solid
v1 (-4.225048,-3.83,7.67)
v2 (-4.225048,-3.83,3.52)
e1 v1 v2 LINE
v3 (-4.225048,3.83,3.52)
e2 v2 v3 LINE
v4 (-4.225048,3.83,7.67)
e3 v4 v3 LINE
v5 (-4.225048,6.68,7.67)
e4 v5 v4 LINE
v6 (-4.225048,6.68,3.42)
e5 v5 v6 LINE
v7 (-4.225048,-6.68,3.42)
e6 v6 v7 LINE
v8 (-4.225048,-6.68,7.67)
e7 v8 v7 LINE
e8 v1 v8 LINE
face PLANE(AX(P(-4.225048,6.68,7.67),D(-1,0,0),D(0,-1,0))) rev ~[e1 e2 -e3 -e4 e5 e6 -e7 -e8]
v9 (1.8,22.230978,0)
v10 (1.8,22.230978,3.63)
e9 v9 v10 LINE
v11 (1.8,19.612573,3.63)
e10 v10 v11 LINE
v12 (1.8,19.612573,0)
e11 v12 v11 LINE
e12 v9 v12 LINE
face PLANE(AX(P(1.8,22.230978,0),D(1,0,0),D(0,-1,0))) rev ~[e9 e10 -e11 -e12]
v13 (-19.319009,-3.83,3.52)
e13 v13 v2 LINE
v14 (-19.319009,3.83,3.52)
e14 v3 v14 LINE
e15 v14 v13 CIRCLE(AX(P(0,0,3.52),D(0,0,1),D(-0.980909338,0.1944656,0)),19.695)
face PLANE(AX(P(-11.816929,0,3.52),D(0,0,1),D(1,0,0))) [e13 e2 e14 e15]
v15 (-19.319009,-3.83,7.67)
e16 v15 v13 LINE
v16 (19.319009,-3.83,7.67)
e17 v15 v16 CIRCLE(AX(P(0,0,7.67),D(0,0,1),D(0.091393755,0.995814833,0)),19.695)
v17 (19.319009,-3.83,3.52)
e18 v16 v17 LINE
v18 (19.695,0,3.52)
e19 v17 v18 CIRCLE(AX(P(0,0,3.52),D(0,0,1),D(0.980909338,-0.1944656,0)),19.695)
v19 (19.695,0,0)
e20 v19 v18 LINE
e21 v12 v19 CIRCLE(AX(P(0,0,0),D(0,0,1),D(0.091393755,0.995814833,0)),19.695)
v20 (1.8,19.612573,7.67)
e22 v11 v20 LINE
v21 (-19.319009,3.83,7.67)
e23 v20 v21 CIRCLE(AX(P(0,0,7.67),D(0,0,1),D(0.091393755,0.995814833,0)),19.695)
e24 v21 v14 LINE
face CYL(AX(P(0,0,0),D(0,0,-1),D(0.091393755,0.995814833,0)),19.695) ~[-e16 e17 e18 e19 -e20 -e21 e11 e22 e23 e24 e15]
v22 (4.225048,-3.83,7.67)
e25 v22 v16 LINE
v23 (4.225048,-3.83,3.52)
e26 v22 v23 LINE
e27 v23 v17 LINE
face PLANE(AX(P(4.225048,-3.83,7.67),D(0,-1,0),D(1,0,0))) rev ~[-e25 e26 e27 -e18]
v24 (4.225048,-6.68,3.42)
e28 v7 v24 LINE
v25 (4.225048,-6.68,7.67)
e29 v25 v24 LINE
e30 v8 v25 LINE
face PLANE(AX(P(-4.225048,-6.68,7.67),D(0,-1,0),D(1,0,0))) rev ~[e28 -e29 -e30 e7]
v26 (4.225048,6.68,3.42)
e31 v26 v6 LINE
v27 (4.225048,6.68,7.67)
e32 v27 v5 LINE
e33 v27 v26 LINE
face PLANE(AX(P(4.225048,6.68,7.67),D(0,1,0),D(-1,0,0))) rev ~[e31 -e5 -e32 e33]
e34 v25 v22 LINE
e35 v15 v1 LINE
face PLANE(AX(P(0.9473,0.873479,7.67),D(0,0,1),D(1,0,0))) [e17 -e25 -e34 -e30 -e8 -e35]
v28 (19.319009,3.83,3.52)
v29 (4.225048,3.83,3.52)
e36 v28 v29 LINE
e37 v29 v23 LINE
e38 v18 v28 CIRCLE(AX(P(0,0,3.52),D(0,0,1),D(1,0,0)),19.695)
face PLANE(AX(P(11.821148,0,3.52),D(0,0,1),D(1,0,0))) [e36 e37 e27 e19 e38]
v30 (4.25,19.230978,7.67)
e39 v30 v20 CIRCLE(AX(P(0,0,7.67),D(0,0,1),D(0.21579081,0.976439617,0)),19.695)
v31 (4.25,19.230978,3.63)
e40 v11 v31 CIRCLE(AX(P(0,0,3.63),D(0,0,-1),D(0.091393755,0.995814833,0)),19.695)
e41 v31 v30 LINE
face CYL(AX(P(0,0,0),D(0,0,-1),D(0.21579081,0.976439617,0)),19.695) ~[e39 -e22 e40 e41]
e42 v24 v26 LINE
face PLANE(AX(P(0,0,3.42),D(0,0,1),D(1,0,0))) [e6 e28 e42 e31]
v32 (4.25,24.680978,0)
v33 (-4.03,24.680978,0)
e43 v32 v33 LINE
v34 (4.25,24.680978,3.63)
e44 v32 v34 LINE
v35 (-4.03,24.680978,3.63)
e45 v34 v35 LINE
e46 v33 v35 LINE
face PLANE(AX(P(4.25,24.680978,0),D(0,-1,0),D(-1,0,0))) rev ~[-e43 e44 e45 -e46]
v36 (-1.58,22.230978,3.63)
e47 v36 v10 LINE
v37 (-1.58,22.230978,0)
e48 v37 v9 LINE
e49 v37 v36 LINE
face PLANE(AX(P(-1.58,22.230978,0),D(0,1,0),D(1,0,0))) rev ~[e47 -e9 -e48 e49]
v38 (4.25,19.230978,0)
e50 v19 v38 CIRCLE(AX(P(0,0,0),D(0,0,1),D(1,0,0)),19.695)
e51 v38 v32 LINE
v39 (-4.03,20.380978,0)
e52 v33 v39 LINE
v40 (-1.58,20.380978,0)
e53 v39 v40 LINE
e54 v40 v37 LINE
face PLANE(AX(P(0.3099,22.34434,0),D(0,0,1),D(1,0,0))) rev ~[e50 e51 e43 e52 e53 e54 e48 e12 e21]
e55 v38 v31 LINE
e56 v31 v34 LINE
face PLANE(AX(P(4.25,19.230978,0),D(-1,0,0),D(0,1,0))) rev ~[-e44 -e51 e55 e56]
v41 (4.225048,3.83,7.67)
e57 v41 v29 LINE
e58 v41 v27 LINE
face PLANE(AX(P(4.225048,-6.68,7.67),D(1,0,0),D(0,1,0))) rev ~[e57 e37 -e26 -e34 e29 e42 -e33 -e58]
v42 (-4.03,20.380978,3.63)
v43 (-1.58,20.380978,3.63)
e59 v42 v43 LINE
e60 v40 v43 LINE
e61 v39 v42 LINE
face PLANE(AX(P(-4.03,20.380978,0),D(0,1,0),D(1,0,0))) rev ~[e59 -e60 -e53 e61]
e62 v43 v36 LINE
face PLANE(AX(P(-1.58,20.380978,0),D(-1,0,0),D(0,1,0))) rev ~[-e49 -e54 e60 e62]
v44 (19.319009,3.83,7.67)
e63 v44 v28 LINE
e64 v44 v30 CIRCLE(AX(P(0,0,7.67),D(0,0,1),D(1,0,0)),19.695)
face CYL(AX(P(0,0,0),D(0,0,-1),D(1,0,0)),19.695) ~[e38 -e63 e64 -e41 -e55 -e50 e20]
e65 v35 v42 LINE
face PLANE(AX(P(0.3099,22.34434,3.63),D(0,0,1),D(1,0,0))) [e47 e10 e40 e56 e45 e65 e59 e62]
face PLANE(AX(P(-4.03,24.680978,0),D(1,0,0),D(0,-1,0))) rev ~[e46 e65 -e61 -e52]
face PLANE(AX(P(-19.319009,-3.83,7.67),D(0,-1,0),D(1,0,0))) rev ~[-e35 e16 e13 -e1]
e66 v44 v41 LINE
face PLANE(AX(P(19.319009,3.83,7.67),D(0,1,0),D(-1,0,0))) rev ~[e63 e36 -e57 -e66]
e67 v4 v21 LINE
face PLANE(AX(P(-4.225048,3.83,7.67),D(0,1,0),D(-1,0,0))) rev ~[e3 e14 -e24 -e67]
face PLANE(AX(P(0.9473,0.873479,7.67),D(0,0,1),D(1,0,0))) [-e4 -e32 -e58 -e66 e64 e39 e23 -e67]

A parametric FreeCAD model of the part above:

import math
import FreeCAD as App
import Part
import Sketcher
Q = App.Units.Quantity

doc = App.newDocument("Part")
body = doc.addObject("PartDesign::Body", "Body")

# Sketch on XY plane
sketch1 = body.newObject("Sketcher::SketchObject", "Sketch")
sketch1.AttachmentSupport = (doc.getObject("XY_Plane"), [""])
sketch1.MapMode = "FlatFace"
sketch1.addGeometry(Part.ArcOfCircle(Part.Circle(App.Vector(0, 0, 0), App.Vector(0, 0, 1), 19.7), math.radians(85), math.radians(360)), False)
sketch1.addGeometry(Part.ArcOfCircle(Part.Circle(App.Vector(0, 0, 0), App.Vector(0, 0, 1), 19.7), math.radians(0), math.radians(78)), False)
sketch1.addGeometry(Part.ArcOfCircle(Part.Circle(App.Vector(0, 0, 0), App.Vector(0, 0, 1), 19.7), math.radians(77.54), math.radians(84.76)), False)
sketch1.addConstraint(Sketcher.Constraint("Tangent", 0, 2, 1, 1))
sketch1.addConstraint(Sketcher.Constraint("Tangent", 1, 2, 2, 1))
sketch1.addConstraint(Sketcher.Constraint("Tangent", 2, 2, 0, 1))
sketch1.addConstraint(Sketcher.Constraint("Coincident", 0, 3, -1, 1))
sketch1.addConstraint(Sketcher.Constraint("PointOnObject", 0, 2, -1))
sketch1.addConstraint(Sketcher.Constraint("Radius", 0, Q("19.695 mm")))
sketch1.addConstraint(Sketcher.Constraint("DistanceX", -1, 1, 2, 2, Q("1.8 mm")))
sketch1.addConstraint(Sketcher.Constraint("DistanceX", -1, 1, 1, 2, Q("4.25 mm")))
pad1 = body.newObject("PartDesign::Pad", "Pad")
pad1.Profile = sketch1
pad1.Length = 7.67

# Sketch on XY plane
sketch2 = body.newObject("Sketcher::SketchObject", "Sketch001")
sketch2.AttachmentSupport = (doc.getObject("XY_Plane"), [""])
sketch2.MapMode = "FlatFace"
sketch2.addGeometry(Part.ArcOfCircle(Part.Circle(App.Vector(0, 0, 0), App.Vector(0, 0, 1), 19.7), math.radians(77.54), math.radians(84.76)), False)
sketch2.addGeometry(Part.LineSegment(App.Vector(4.2, 19.2, 0), App.Vector(4.2, 24.7, 0)), False)
sketch2.addGeometry(Part.LineSegment(App.Vector(4.2, 24.7, 0), App.Vector(-4, 24.7, 0)), False)
sketch2.addGeometry(Part.LineSegment(App.Vector(-4, 24.7, 0), App.Vector(-4, 20.4, 0)), False)
sketch2.addGeometry(Part.LineSegment(App.Vector(-4, 20.4, 0), App.Vector(-1.6, 20.4, 0)), False)
sketch2.addGeometry(Part.LineSegment(App.Vector(-1.6, 20.4, 0), App.Vector(-1.6, 22.2, 0)), False)
sketch2.addGeometry(Part.LineSegment(App.Vector(-1.6, 22.2, 0), App.Vector(1.8, 22.2, 0)), False)
sketch2.addGeometry(Part.LineSegment(App.Vector(1.8, 22.2, 0), App.Vector(1.8, 19.6, 0)), False)
sketch2.addConstraint(Sketcher.Constraint("Coincident", 0, 1, 1, 1))
sketch2.addConstraint(Sketcher.Constraint("Coincident", 1, 2, 2, 1))
sketch2.addConstraint(Sketcher.Constraint("Coincident", 2, 2, 3, 1))
sketch2.addConstraint(Sketcher.Constraint("Coincident", 3, 2, 4, 1))
sketch2.addConstraint(Sketcher.Constraint("Coincident", 4, 2, 5, 1))
sketch2.addConstraint(Sketcher.Constraint("Coincident", 5, 2, 6, 1))
sketch2.addConstraint(Sketcher.Constraint("Coincident", 6, 2, 7, 1))
sketch2.addConstraint(Sketcher.Constraint("Coincident", 7, 2, 0, 2))
sketch2.addConstraint(Sketcher.Constraint("Vertical", 1))
sketch2.addConstraint(Sketcher.Constraint("Horizontal", 2))
sketch2.addConstraint(Sketcher.Constraint("Vertical", 3))
sketch2.addConstraint(Sketcher.Constraint("Horizontal", 4))
sketch2.addConstraint(Sketcher.Constraint("Vertical", 5))
sketch2.addConstraint(Sketcher.Constraint("Horizontal", 6))
sketch2.addConstraint(Sketcher.Constraint("Vertical", 7))
sketch2.addConstraint(Sketcher.Constraint("Coincident", 0, 3, -1, 1))
sketch2.addConstraint(Sketcher.Constraint("DistanceY", 3, 2, 3, 1, Q("4.3 mm")))
sketch2.addConstraint(Sketcher.Constraint("Radius", 0, Q("19.695 mm")))
sketch2.addConstraint(Sketcher.Constraint("DistanceY", 0, 1, 5, 2, Q("3 mm")))
sketch2.addConstraint(Sketcher.Constraint("DistanceX", 2, 2, 2, 1, Q("8.28 mm")))
sketch2.addConstraint(Sketcher.Constraint("DistanceX", 4, 1, 4, 2, Q("2.45 mm")))
sketch2.addConstraint(Sketcher.Constraint("DistanceX", 6, 1, 6, 2, Q("3.38 mm")))
sketch2.addConstraint(Sketcher.Constraint("DistanceY", 1, 1, 1, 2, Q("5.45 mm")))
sketch2.addConstraint(Sketcher.Constraint("DistanceX", -1, 1, 6, 2, Q("1.8 mm")))
pad2 = body.newObject("PartDesign::Pad", "Pad001")
pad2.Profile = sketch2
pad2.Length = 3.63

# Sketch on XY plane
sketch3 = body.newObject("Sketcher::SketchObject", "Sketch002")
sketch3.AttachmentSupport = (doc.getObject("XY_Plane"), [""])
sketch3.MapMode = "FlatFace"
sketch3.AttachmentOffset = App.Placement(App.Vector(0, 0, 7.67), App.Rotation())
sketch3.addGeometry(Part.LineSegment(App.Vector(4, 7, 0), App.Vector(-4, 7, 0)), False)
sketch3.addGeometry(Part.LineSegment(App.Vector(-4, 7, 0), App.Vector(-4, -7, 0)), False)
sketch3.addGeometry(Part.LineSegment(App.Vector(-4, -7, 0), App.Vector(4, -7, 0)), False)
sketch3.addGeometry(Part.LineSegment(App.Vector(4, -7, 0), App.Vector(4, 7, 0)), False)
sketch3.addConstraint(Sketcher.Constraint("Coincident", 0, 2, 1, 1))
sketch3.addConstraint(Sketcher.Constraint("Coincident", 1, 2, 2, 1))
sketch3.addConstraint(Sketcher.Constraint("Coincident", 2, 2, 3, 1))
sketch3.addConstraint(Sketcher.Constraint("Coincident", 3, 2, 0, 1))
sketch3.addConstraint(Sketcher.Constraint("Horizontal", 0))
sketch3.addConstraint(Sketcher.Constraint("Vertical", 1))
sketch3.addConstraint(Sketcher.Constraint("Horizontal", 2))
sketch3.addConstraint(Sketcher.Constraint("Vertical", 3))
sketch3.addConstraint(Sketcher.Constraint("Symmetric", 0, 2, 2, 2, -1, 1))
sketch3.addConstraint(Sketcher.Constraint("DistanceY", 1, 2, 1, 1, Q("13.36 mm")))
sketch3.addConstraint(Sketcher.Constraint("DistanceX", 0, 2, 0, 1, Q("8.450096 mm")))
pocket1 = body.newObject("PartDesign::Pocket", "Pocket")
pocket1.Profile = sketch3
pocket1.Length = 4.25

# Sketch on XY plane
sketch4 = body.newObject("Sketcher::SketchObject", "Sketch003")
sketch4.AttachmentSupport = (doc.getObject("XY_Plane"), [""])
sketch4.MapMode = "FlatFace"
sketch4.AttachmentOffset = App.Placement(App.Vector(0, 0, 7.67), App.Rotation())
sketch4.addGeometry(Part.LineSegment(App.Vector(-4.2, -3.8, 0), App.Vector(-4.2, 3.8, 0)), False)
sketch4.addGeometry(Part.LineSegment(App.Vector(-4.2, 3.8, 0), App.Vector(-19.3, 3.8, 0)), False)
sketch4.addGeometry(Part.ArcOfCircle(Part.Circle(App.Vector(0, 0, 0), App.Vector(0, 0, 1), 19.7), math.radians(169), math.radians(191)), False)
sketch4.addGeometry(Part.LineSegment(App.Vector(-19.3, -3.8, 0), App.Vector(-4.2, -3.8, 0)), False)
sketch4.addGeometry(Part.LineSegment(App.Vector(19.3, 3.8, 0), App.Vector(4.2, 3.8, 0)), False)
sketch4.addGeometry(Part.LineSegment(App.Vector(4.2, 3.8, 0), App.Vector(4.2, -3.8, 0)), False)
sketch4.addGeometry(Part.LineSegment(App.Vector(4.2, -3.8, 0), App.Vector(19.3, -3.8, 0)), False)
sketch4.addGeometry(Part.ArcOfCircle(Part.Circle(App.Vector(0, 0, 0), App.Vector(0, 0, 1), 19.7), math.radians(-11.21), math.radians(0)), False)
sketch4.addGeometry(Part.ArcOfCircle(Part.Circle(App.Vector(0, 0, 0), App.Vector(0, 0, 1), 19.7), math.radians(0), math.radians(11.21)), False)
sketch4.addConstraint(Sketcher.Constraint("Coincident", 0, 2, 1, 1))
sketch4.addConstraint(Sketcher.Constraint("Coincident", 1, 2, 2, 1))
sketch4.addConstraint(Sketcher.Constraint("Coincident", 2, 2, 3, 1))
sketch4.addConstraint(Sketcher.Constraint("Coincident", 3, 2, 0, 1))
sketch4.addConstraint(Sketcher.Constraint("Coincident", 4, 2, 5, 1))
sketch4.addConstraint(Sketcher.Constraint("Coincident", 5, 2, 6, 1))
sketch4.addConstraint(Sketcher.Constraint("Coincident", 6, 2, 7, 1))
sketch4.addConstraint(Sketcher.Constraint("Tangent", 7, 2, 8, 1))
sketch4.addConstraint(Sketcher.Constraint("Coincident", 8, 2, 4, 1))
sketch4.addConstraint(Sketcher.Constraint("Vertical", 0))
sketch4.addConstraint(Sketcher.Constraint("Horizontal", 1))
sketch4.addConstraint(Sketcher.Constraint("Horizontal", 3))
sketch4.addConstraint(Sketcher.Constraint("Horizontal", 4))
sketch4.addConstraint(Sketcher.Constraint("Vertical", 5))
sketch4.addConstraint(Sketcher.Constraint("Horizontal", 6))
sketch4.addConstraint(Sketcher.Constraint("Coincident", 2, 3, -1, 1))
sketch4.addConstraint(Sketcher.Constraint("Coincident", 7, 3, -1, 1))
sketch4.addConstraint(Sketcher.Constraint("Equal", 2, 7))
sketch4.addConstraint(Sketcher.Constraint("Equal", 7, 8))
sketch4.addConstraint(Sketcher.Constraint("Symmetric", 3, 2, 4, 2, -1, 1))
sketch4.addConstraint(Sketcher.Constraint("PointOnObject", 7, 2, -1))
sketch4.addConstraint(Sketcher.Constraint("Horizontal", 1, 2, 4, 2))
sketch4.addConstraint(Sketcher.Constraint("Horizontal", 3, 2, 5, 2))
sketch4.addConstraint(Sketcher.Constraint("Radius", 2, Q("19.695 mm")))
sketch4.addConstraint(Sketcher.Constraint("DistanceY", 0, 1, 0, 2, Q("7.66 mm")))
sketch4.addConstraint(Sketcher.Constraint("DistanceX", 1, 2, 1, 1, Q("15.093962 mm")))
pocket2 = body.newObject("PartDesign::Pocket", "Pocket001")
pocket2.Profile = sketch4
pocket2.Length = 4.15

doc.recompute()
